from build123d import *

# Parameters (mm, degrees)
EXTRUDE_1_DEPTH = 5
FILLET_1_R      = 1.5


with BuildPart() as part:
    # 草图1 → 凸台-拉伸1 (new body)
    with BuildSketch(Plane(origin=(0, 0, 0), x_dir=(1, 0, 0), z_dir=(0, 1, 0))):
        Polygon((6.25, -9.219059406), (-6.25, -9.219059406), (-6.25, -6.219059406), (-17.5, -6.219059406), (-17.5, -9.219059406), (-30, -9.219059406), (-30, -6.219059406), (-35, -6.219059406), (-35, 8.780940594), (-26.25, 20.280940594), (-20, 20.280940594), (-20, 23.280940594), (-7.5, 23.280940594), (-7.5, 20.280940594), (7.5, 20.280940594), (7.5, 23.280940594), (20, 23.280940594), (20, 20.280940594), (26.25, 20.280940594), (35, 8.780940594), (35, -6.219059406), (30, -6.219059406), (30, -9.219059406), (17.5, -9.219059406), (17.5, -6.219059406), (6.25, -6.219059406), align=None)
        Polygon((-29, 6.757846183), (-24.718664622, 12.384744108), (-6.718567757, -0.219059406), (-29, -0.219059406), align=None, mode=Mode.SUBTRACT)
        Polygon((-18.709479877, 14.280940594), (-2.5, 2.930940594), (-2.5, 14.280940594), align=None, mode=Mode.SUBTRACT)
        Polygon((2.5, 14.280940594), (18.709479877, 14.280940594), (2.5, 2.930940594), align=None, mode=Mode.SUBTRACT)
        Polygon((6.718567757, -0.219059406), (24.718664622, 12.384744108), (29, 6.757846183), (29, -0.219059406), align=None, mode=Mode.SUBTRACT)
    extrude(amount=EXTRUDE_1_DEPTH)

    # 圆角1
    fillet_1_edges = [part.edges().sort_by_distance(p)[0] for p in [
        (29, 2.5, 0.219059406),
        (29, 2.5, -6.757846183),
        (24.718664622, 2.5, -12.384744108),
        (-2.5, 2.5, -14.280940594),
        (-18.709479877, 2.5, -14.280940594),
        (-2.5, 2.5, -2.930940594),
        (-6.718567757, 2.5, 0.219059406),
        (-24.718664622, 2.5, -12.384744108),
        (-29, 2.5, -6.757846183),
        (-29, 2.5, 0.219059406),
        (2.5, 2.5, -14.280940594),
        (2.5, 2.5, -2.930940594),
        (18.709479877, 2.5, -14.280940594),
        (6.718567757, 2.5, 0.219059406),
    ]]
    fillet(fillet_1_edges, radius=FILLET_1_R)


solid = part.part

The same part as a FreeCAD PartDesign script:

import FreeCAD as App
import Part
import Sketcher

V = App.Vector
Q = App.Units.Quantity


def edges_at(feature, points):
    """Names of the edges that pass closest to the given points."""
    edges = feature.Shape.Edges
    near = lambda p: min(range(len(edges)), key=lambda i: edges[i].distToShape(Part.Vertex(*p))[0])
    return sorted({f"Edge{near(p) + 1}" for p in points})


def add_polygon(sketch, points):
    """Adds a closed chain of lines whose ends are joined by coincident constraints."""
    first, n = sketch.GeometryCount, len(points)
    for a, b in zip(points, points[1:] + points[:1]):
        sketch.addGeometry(Part.LineSegment(App.Vector(*a, 0), App.Vector(*b, 0)), False)
    for i in range(n):
        sketch.addConstraint(Sketcher.Constraint("Coincident", first + i, 2, first + (i + 1) % n, 1))

doc = App.newDocument("Part")
body = doc.addObject("PartDesign::Body", "Body")

# Sketch on XZ plane
sketch1 = body.newObject("Sketcher::SketchObject", "Sketch")
sketch1.AttachmentSupport = (doc.getObject("XZ_Plane"), [""])
sketch1.MapMode = "FlatFace"
add_polygon(sketch1, [(-6.2, 9.2), (6.2, 9.2), (6.2, 6.2), (17.5, 6.2), (17.5, 9.2), (30, 9.2), (30, 6.2), (35, 6.2), (35, -8.8), (26.2, -20.3), (20, -20.3), (20, -23.3), (7.5, -23.3), (7.5, -20.3), (-7.5, -20.3), (-7.5, -23.3), (-20, -23.3), (-20, -20.3), (-26.2, -20.3), (-35, -8.8), (-35, 6.2), (-30, 6.2), (-30, 9.2), (-17.5, 9.2), (-17.5, 6.2), (-6.2, 6.2)])  # lines 0-25
add_polygon(sketch1, [(6.7, 0.2), (24.7, -12.4), (29, -6.8), (29, 0.2)])  # lines 26-29
add_polygon(sketch1, [(-29, -6.8), (-24.7, -12.4), (-6.7, 0.2), (-29, 0.2)])  # lines 30-33
add_polygon(sketch1, [(2.5, -14.3), (18.7, -14.3), (2.5, -2.9)])  # lines 34-36
add_polygon(sketch1, [(-18.7, -14.3), (-2.5, -14.3), (-2.5, -2.9)])  # lines 37-39
sketch1.addConstraint(Sketcher.Constraint("Horizontal", 0))
sketch1.addConstraint(Sketcher.Constraint("Vertical", 1))
sketch1.addConstraint(Sketcher.Constraint("Horizontal", 2))
sketch1.addConstraint(Sketcher.Constraint("Vertical", 3))
sketch1.addConstraint(Sketcher.Constraint("Horizontal", 4))
sketch1.addConstraint(Sketcher.Constraint("Vertical", 5))
sketch1.addConstraint(Sketcher.Constraint("Horizontal", 6))
sketch1.addConstraint(Sketcher.Constraint("Vertical", 7))
sketch1.addConstraint(Sketcher.Constraint("Horizontal", 9))
sketch1.addConstraint(Sketcher.Constraint("Vertical", 10))
sketch1.addConstraint(Sketcher.Constraint("Horizontal", 11))
sketch1.addConstraint(Sketcher.Constraint("Vertical", 12))
sketch1.addConstraint(Sketcher.Constraint("Horizontal", 13))
sketch1.addConstraint(Sketcher.Constraint("Vertical", 14))
sketch1.addConstraint(Sketcher.Constraint("Horizontal", 15))
sketch1.addConstraint(Sketcher.Constraint("Vertical", 16))
sketch1.addConstraint(Sketcher.Constraint("Horizontal", 17))
sketch1.addConstraint(Sketcher.Constraint("Vertical", 19))
sketch1.addConstraint(Sketcher.Constraint("Horizontal", 20))
sketch1.addConstraint(Sketcher.Constraint("Vertical", 21))
sketch1.addConstraint(Sketcher.Constraint("Horizontal", 22))
sketch1.addConstraint(Sketcher.Constraint("Vertical", 23))
sketch1.addConstraint(Sketcher.Constraint("Horizontal", 24))
sketch1.addConstraint(Sketcher.Constraint("Vertical", 25))
sketch1.addConstraint(Sketcher.Constraint("Vertical", 28))
sketch1.addConstraint(Sketcher.Constraint("Horizontal", 29))
sketch1.addConstraint(Sketcher.Constraint("Horizontal", 32))
sketch1.addConstraint(Sketcher.Constraint("Vertical", 33))
sketch1.addConstraint(Sketcher.Constraint("Horizontal", 34))
sketch1.addConstraint(Sketcher.Constraint("Vertical", 36))
sketch1.addConstraint(Sketcher.Constraint("Horizontal", 37))
sketch1.addConstraint(Sketcher.Constraint("Vertical", 38))
sketch1.addConstraint(Sketcher.Constraint("Symmetric", 11, 2, 14, 2, -2))
sketch1.addConstraint(Sketcher.Constraint("Symmetric", 9, 2, 16, 2, -2))
sketch1.addConstraint(Sketcher.Constraint("Symmetric", 7, 2, 18, 2, -2))
sketch1.addConstraint(Sketcher.Constraint("Symmetric", 5, 2, 20, 2, -2))
sketch1.addConstraint(Sketcher.Constraint("Symmetric", 3, 2, 22, 2, -2))
sketch1.addConstraint(Sketcher.Constraint("Symmetric", 1, 2, 24, 2, -2))
sketch1.addConstraint(Sketcher.Constraint("Symmetric", 26, 2, 30, 2, -2))
sketch1.addConstraint(Sketcher.Constraint("Symmetric", 29, 2, 31, 2, -2))
sketch1.addConstraint(Sketcher.Constraint("Symmetric", 27, 2, 33, 2, -2))
sketch1.addConstraint(Sketcher.Constraint("Symmetric", 36, 2, 37, 2, -2))
sketch1.addConstraint(Sketcher.Constraint("Parallel", 8, 27))
sketch1.addConstraint(Sketcher.Constraint("Parallel", 18, 30))
sketch1.addConstraint(Sketcher.Constraint("Parallel", 26, 35))
sketch1.addConstraint(Sketcher.Constraint("Parallel", 31, 39))
sketch1.addConstraint(Sketcher.Constraint("Horizontal", 0, 2, 3, 2))
sketch1.addConstraint(Sketcher.Constraint("Horizontal", 2, 2, 5, 2))
sketch1.addConstraint(Sketcher.Constraint("Horizontal", 9, 2, 12, 2))
sketch1.addConstraint(Sketcher.Constraint("Horizontal", 35, 2, 38, 2))
sketch1.addConstraint(Sketcher.Constraint("Equal", 0, 4))
sketch1.addConstraint(Sketcher.Constraint("Equal", 4, 11))
sketch1.addConstraint(Sketcher.Constraint("Equal", 13, 7))
sketch1.addConstraint(Sketcher.Constraint("Equal", 5, 10))
sketch1.addConstraint(Sketcher.Constraint("DistanceX", 6, 1, 6, 2, Q("5 mm")))
sketch1.addConstraint(Sketcher.Constraint("DistanceX", 13, 2, 13, 1, Q("15 mm")))
sketch1.addConstraint(Sketcher.Constraint("DistanceY", 1, 2, 1, 1, Q("3 mm")))
sketch1.addConstraint(Sketcher.Constraint("Angle", 26, Q("-35 deg")))
sketch1.addConstraint(Sketcher.Constraint("DistanceX", 0, 1, 0, 2, Q("12.5 mm")))
sketch1.addConstraint(Sketcher.Constraint("DistanceX", -1, 1, 4, 2, Q("30 mm")))
sketch1.addConstraint(Sketcher.Constraint("DistanceX", -1, 1, 27, 2, Q("29 mm")))
sketch1.addConstraint(Sketcher.Constraint("DistanceY", 28, 2, 5, 2, Q("6 mm")))
sketch1.addConstraint(Sketcher.Constraint("DistanceY", 9, 2, 34, 2, Q("6 mm")))
sketch1.addConstraint(Sketcher.Constraint("DistanceX", 36, 2, 12, 2, Q("5 mm")))
sketch1.addConstraint(Sketcher.Constraint("DistanceX", 9, 2, 9, 1, Q("6.25 mm")))
sketch1.addConstraint(Sketcher.Constraint("DistanceY", 36, 2, 36, 1, Q("11.35 mm")))
sketch1.addConstraint(Sketcher.Constraint("DistanceY", 8, 2, 7, 2, Q("11.5 mm")))
sketch1.addConstraint(Sketcher.Constraint("Distance", 26, Q("21.974061 mm")))
sketch1.addConstraint(Sketcher.Constraint("Distance", 27, Q("7.070489 mm")))
sketch1.addConstraint(Sketcher.Constraint("DistanceY", -1, 1, 0, 2, Q("9.219059 mm")))
pad1 = body.newObject("PartDesign::Pad", "Pad")
pad1.Profile = sketch1
pad1.Length = 5
pad1.Reversed = True
doc.recompute()

fillet = body.newObject("PartDesign::Fillet", "Fillet")
fillet.Base = (pad1, edges_at(pad1, [
    (29, 2.5, 0.219),
    (29, 2.5, -6.758),
    (24.719, 2.5, -12.385),
    (-2.5, 2.5, -14.281),
    (-18.709, 2.5, -14.281),
    (-2.5, 2.5, -2.931),
    (-6.719, 2.5, 0.219),
    (-24.719, 2.5, -12.385),
    (-29, 2.5, -6.758),
    (-29, 2.5, 0.219),
    (2.5, 2.5, -14.281),
    (2.5, 2.5, -2.931),
    (18.709, 2.5, -14.281),
    (6.719, 2.5, 0.219),
]))
fillet.Radius = 1.5

doc.recompute()
